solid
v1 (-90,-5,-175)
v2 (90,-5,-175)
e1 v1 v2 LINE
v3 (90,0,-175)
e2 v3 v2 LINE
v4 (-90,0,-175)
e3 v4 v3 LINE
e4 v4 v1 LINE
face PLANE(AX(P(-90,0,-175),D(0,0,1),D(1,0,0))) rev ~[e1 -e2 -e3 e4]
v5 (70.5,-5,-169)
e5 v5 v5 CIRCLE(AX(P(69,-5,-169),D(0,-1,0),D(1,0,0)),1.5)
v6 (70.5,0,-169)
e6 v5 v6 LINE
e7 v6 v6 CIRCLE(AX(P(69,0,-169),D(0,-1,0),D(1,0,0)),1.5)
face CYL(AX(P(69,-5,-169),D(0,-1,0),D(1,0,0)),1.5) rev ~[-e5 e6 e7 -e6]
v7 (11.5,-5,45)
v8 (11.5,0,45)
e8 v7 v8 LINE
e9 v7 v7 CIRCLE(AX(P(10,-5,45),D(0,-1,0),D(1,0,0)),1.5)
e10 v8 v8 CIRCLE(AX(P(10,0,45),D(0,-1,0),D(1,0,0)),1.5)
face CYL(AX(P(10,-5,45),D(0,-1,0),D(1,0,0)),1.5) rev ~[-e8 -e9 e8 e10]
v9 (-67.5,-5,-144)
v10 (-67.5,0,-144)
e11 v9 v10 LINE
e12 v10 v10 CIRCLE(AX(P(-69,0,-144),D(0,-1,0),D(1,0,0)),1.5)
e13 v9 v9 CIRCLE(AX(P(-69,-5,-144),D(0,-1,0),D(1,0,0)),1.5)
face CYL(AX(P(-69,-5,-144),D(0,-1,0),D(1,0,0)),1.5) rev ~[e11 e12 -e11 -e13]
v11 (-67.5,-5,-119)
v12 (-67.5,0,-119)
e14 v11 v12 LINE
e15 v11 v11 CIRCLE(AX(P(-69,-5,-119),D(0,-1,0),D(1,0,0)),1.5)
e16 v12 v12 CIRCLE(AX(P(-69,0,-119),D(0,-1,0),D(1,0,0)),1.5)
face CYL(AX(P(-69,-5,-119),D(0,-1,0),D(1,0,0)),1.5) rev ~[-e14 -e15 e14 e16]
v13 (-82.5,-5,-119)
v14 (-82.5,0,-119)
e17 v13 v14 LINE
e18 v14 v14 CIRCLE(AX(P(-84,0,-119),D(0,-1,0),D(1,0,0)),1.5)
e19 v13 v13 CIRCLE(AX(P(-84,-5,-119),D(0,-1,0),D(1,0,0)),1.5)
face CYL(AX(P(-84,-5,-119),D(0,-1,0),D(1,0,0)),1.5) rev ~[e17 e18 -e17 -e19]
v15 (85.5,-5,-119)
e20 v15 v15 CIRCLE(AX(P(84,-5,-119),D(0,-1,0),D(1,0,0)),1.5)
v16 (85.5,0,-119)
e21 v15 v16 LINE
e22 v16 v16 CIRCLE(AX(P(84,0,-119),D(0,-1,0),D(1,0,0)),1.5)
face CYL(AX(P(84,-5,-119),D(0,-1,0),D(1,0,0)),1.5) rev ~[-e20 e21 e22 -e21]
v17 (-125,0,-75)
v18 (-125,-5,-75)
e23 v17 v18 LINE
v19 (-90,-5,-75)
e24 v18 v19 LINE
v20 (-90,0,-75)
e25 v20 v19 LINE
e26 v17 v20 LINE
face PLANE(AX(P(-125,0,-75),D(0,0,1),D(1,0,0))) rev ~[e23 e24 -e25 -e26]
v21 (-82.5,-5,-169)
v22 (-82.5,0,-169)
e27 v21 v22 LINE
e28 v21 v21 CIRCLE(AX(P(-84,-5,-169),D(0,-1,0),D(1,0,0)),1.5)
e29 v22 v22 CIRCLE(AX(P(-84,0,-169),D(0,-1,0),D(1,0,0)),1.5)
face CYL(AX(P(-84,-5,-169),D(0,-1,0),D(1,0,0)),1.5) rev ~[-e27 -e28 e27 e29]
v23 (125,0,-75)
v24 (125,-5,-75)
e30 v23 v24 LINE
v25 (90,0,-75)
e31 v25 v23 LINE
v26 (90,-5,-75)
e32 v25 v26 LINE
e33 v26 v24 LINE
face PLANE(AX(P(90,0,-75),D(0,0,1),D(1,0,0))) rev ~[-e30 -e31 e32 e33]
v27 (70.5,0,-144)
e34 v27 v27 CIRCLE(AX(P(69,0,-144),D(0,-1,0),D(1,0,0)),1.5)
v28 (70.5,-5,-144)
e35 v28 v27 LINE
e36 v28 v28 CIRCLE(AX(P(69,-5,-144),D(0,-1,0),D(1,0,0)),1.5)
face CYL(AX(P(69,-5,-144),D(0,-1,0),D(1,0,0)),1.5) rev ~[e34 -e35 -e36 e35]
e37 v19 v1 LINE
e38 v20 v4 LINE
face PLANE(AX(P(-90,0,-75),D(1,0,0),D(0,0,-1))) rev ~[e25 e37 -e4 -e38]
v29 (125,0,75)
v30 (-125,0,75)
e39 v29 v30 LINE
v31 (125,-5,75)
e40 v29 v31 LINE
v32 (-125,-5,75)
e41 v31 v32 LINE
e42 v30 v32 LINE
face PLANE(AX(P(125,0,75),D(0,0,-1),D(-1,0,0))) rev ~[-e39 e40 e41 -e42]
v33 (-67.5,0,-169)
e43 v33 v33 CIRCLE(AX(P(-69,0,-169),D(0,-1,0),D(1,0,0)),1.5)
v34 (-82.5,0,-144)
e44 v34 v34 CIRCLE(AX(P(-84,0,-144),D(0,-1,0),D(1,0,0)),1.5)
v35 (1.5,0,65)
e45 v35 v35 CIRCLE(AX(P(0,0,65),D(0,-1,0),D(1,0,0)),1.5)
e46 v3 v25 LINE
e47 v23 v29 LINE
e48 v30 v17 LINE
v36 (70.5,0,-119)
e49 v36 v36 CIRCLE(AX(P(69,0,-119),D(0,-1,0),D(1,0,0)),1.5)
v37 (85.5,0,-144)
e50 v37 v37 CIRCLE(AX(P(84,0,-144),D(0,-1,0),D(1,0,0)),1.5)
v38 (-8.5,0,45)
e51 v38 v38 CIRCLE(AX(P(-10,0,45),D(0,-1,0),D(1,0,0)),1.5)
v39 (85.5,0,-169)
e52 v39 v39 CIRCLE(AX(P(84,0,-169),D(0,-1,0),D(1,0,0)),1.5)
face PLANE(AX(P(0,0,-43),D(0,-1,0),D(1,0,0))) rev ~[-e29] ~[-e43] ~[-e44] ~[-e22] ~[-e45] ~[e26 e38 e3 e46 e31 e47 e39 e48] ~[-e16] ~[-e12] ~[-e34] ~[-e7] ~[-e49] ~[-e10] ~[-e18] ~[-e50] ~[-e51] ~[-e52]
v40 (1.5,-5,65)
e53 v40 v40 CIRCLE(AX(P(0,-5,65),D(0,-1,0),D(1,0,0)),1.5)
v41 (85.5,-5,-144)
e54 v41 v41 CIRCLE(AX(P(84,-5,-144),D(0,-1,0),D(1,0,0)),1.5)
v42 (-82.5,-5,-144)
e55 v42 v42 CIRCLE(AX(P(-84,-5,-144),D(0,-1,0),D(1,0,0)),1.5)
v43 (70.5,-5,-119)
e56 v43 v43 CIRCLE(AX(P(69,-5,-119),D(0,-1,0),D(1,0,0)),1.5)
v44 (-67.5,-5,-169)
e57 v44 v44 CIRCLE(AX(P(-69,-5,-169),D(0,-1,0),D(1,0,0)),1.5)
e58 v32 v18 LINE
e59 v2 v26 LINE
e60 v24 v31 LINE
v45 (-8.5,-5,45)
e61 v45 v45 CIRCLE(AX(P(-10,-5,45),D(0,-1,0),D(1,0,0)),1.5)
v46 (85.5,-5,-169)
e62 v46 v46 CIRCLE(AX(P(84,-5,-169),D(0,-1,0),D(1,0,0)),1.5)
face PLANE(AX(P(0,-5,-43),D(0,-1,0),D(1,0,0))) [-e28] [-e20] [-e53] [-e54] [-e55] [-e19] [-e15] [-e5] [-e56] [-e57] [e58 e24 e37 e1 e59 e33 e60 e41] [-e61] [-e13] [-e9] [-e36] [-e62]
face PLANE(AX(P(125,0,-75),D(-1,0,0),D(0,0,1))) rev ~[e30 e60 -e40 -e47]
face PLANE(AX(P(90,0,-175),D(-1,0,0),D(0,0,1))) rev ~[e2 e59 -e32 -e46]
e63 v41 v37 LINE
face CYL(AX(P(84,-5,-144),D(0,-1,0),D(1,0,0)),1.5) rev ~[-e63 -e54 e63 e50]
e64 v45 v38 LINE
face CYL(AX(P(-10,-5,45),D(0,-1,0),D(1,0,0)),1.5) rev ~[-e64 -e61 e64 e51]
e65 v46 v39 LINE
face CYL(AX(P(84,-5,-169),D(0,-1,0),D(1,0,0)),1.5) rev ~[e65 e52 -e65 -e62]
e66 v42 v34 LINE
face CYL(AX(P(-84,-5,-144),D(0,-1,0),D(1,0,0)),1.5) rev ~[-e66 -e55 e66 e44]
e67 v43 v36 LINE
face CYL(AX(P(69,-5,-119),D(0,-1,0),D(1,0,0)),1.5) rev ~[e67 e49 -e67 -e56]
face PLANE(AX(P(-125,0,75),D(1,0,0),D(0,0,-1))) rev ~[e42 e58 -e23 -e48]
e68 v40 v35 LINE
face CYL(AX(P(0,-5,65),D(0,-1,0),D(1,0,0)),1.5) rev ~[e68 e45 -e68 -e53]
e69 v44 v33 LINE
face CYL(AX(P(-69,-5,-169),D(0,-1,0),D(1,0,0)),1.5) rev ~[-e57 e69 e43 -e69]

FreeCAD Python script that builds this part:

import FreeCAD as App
import Part
import Sketcher

V = App.Vector
Q = App.Units.Quantity

doc = App.newDocument("Part")
body = doc.addObject("PartDesign::Body", "Body")

# Sketch on XZ plane
sketch1 = body.newObject("Sketcher::SketchObject", "Sketch")
sketch1.AttachmentSupport = (doc.getObject("XZ_Plane"), [""])
sketch1.MapMode = "FlatFace"
sketch1.addGeometry([
    Part.LineSegment(V(90, -75, 0), V(125, -75, 0)),  # 0
    Part.LineSegment(V(125, -75, 0), V(125, 75, 0)),  # 1
    Part.LineSegment(V(125, 75, 0), V(-125, 75, 0)),  # 2
    Part.LineSegment(V(-125, 75, 0), V(-125, -75, 0)),  # 3
    Part.LineSegment(V(-125, -75, 0), V(-90, -75, 0)),  # 4
    Part.LineSegment(V(-90, -75, 0), V(-90, -175, 0)),  # 5
    Part.LineSegment(V(-90, -175, 0), V(90, -175, 0)),  # 6
    Part.LineSegment(V(90, -175, 0), V(90, -75, 0)),  # 7
], False)
sketch1.addConstraint([
    Sketcher.Constraint("Coincident", 0, 2, 1, 1),
    Sketcher.Constraint("Coincident", 1, 2, 2, 1),
    Sketcher.Constraint("Coincident", 2, 2, 3, 1),
    Sketcher.Constraint("Coincident", 3, 2, 4, 1),
    Sketcher.Constraint("Coincident", 4, 2, 5, 1),
    Sketcher.Constraint("Coincident", 5, 2, 6, 1),
    Sketcher.Constraint("Coincident", 6, 2, 7, 1),
    Sketcher.Constraint("Coincident", 7, 2, 0, 1),
    Sketcher.Constraint("Horizontal", 0),
    Sketcher.Constraint("Vertical", 1),
    Sketcher.Constraint("Horizontal", 2),
    Sketcher.Constraint("Vertical", 3),
    Sketcher.Constraint("Horizontal", 4),
    Sketcher.Constraint("Vertical", 5),
    Sketcher.Constraint("Horizontal", 6),
    Sketcher.Constraint("Vertical", 7),
    Sketcher.Constraint("Symmetric", 0, 2, 2, 2, -1, 1),
    Sketcher.Constraint("Symmetric", 4, 2, 7, 2, -2),
    Sketcher.Constraint("DistanceX", 0, 1, 0, 2, Q("35 mm")),
    Sketcher.Constraint("DistanceX", 2, 2, 2, 1, Q("250 mm")),
    Sketcher.Constraint("DistanceY", 1, 1, 1, 2, Q("150 mm")),
    Sketcher.Constraint("DistanceY", 5, 2, 5, 1, Q("100 mm")),
])
pad1 = body.newObject("PartDesign::Pad", "Pad")
pad1.Profile = sketch1
pad1.Length = 5

# Sketch on XZ plane
sketch2 = body.newObject("Sketcher::SketchObject", "Sketch001")
sketch2.AttachmentSupport = (doc.getObject("XZ_Plane"), [""])
sketch2.MapMode = "FlatFace"
sketch2.AttachmentOffset = App.Placement(V(0, 0, 5), App.Rotation())
sketch2.addGeometry([
    Part.Circle(V(0, 65, 0), V(0, 0, 1), 1.5),  # 0
    Part.Circle(V(-10, 45, 0), V(0, 0, 1), 1.5),  # 1
    Part.Circle(V(10, 45, 0), V(0, 0, 1), 1.5),  # 2
    Part.Circle(V(-84, -169, 0), V(0, 0, 1), 1.5),  # 3
    Part.Circle(V(-84, -144, 0), V(0, 0, 1), 1.5),  # 4
    Part.Circle(V(-84, -119, 0), V(0, 0, 1), 1.5),  # 5
    Part.Circle(V(-69, -169, 0), V(0, 0, 1), 1.5),  # 6
    Part.Circle(V(-69, -144, 0), V(0, 0, 1), 1.5),  # 7
    Part.Circle(V(-69, -119, 0), V(0, 0, 1), 1.5),  # 8
    Part.Circle(V(84, -169, 0), V(0, 0, 1), 1.5),  # 9
    Part.Circle(V(84, -144, 0), V(0, 0, 1), 1.5),  # 10
    Part.Circle(V(69, -169, 0), V(0, 0, 1), 1.5),  # 11
    Part.Circle(V(69, -119, 0), V(0, 0, 1), 1.5),  # 12
    Part.Circle(V(69, -144, 0), V(0, 0, 1), 1.5),  # 13
    Part.Circle(V(84, -119, 0), V(0, 0, 1), 1.5),  # 14
], False)
sketch2.addConstraint([
    Sketcher.Constraint("Equal", 0, 1),
    Sketcher.Constraint("Equal", 1, 2),
    Sketcher.Constraint("Equal", 2, 3),
    Sketcher.Constraint("Equal", 3, 4),
    Sketcher.Constraint("Equal", 4, 5),
    Sketcher.Constraint("Equal", 5, 6),
    Sketcher.Constraint("Equal", 6, 7),
    Sketcher.Constraint("Equal", 7, 8),
    Sketcher.Constraint("Equal", 8, 9),
    Sketcher.Constraint("Equal", 9, 10),
    Sketcher.Constraint("Equal", 10, 11),
    Sketcher.Constraint("Equal", 11, 12),
    Sketcher.Constraint("Equal", 12, 13),
    Sketcher.Constraint("Equal", 13, 14),
    Sketcher.Constraint("Symmetric", 1, 3, 2, 3, -2),
    Sketcher.Constraint("Symmetric", 3, 3, 9, 3, -2),
    Sketcher.Constraint("Symmetric", 4, 3, 10, 3, -2),
    Sketcher.Constraint("Symmetric", 6, 3, 11, 3, -2),
    Sketcher.Constraint("Symmetric", 8, 3, 12, 3, -2),
    Sketcher.Constraint("Symmetric", 7, 3, 13, 3, -2),
    Sketcher.Constraint("Symmetric", 5, 3, 14, 3, -2),
    Sketcher.Constraint("PointOnObject", 0, 3, -2),
    Sketcher.Constraint("Horizontal", 3, 3, 6, 3),
    Sketcher.Constraint("Horizontal", 4, 3, 7, 3),
    Sketcher.Constraint("Horizontal", 5, 3, 8, 3),
    Sketcher.Constraint("Vertical", 3, 3, 4, 3),
    Sketcher.Constraint("Vertical", 4, 3, 5, 3),
    Sketcher.Constraint("Vertical", 6, 3, 7, 3),
    Sketcher.Constraint("Vertical", 7, 3, 8, 3),
    Sketcher.Constraint("Diameter", 0, Q("3 mm")),
    Sketcher.Constraint("DistanceY", -1, 1, 0, 3, Q("65 mm")),
    Sketcher.Constraint("DistanceX", 1, 3, -1, 1, Q("10 mm")),
    Sketcher.Constraint("DistanceY", -1, 1, 1, 3, Q("45 mm")),
    Sketcher.Constraint("DistanceX", 3, 3, -1, 1, Q("84 mm")),
    Sketcher.Constraint("DistanceY", 3, 3, -1, 1, Q("169 mm")),
    Sketcher.Constraint("DistanceY", 4, 3, -1, 1, Q("144 mm")),
    Sketcher.Constraint("DistanceY", 5, 3, -1, 1, Q("119 mm")),
    Sketcher.Constraint("DistanceX", 6, 3, -1, 1, Q("69 mm")),
])
pocket1 = body.newObject("PartDesign::Pocket", "Pocket")
pocket1.Profile = sketch2
pocket1.Length = 5

doc.recompute()
